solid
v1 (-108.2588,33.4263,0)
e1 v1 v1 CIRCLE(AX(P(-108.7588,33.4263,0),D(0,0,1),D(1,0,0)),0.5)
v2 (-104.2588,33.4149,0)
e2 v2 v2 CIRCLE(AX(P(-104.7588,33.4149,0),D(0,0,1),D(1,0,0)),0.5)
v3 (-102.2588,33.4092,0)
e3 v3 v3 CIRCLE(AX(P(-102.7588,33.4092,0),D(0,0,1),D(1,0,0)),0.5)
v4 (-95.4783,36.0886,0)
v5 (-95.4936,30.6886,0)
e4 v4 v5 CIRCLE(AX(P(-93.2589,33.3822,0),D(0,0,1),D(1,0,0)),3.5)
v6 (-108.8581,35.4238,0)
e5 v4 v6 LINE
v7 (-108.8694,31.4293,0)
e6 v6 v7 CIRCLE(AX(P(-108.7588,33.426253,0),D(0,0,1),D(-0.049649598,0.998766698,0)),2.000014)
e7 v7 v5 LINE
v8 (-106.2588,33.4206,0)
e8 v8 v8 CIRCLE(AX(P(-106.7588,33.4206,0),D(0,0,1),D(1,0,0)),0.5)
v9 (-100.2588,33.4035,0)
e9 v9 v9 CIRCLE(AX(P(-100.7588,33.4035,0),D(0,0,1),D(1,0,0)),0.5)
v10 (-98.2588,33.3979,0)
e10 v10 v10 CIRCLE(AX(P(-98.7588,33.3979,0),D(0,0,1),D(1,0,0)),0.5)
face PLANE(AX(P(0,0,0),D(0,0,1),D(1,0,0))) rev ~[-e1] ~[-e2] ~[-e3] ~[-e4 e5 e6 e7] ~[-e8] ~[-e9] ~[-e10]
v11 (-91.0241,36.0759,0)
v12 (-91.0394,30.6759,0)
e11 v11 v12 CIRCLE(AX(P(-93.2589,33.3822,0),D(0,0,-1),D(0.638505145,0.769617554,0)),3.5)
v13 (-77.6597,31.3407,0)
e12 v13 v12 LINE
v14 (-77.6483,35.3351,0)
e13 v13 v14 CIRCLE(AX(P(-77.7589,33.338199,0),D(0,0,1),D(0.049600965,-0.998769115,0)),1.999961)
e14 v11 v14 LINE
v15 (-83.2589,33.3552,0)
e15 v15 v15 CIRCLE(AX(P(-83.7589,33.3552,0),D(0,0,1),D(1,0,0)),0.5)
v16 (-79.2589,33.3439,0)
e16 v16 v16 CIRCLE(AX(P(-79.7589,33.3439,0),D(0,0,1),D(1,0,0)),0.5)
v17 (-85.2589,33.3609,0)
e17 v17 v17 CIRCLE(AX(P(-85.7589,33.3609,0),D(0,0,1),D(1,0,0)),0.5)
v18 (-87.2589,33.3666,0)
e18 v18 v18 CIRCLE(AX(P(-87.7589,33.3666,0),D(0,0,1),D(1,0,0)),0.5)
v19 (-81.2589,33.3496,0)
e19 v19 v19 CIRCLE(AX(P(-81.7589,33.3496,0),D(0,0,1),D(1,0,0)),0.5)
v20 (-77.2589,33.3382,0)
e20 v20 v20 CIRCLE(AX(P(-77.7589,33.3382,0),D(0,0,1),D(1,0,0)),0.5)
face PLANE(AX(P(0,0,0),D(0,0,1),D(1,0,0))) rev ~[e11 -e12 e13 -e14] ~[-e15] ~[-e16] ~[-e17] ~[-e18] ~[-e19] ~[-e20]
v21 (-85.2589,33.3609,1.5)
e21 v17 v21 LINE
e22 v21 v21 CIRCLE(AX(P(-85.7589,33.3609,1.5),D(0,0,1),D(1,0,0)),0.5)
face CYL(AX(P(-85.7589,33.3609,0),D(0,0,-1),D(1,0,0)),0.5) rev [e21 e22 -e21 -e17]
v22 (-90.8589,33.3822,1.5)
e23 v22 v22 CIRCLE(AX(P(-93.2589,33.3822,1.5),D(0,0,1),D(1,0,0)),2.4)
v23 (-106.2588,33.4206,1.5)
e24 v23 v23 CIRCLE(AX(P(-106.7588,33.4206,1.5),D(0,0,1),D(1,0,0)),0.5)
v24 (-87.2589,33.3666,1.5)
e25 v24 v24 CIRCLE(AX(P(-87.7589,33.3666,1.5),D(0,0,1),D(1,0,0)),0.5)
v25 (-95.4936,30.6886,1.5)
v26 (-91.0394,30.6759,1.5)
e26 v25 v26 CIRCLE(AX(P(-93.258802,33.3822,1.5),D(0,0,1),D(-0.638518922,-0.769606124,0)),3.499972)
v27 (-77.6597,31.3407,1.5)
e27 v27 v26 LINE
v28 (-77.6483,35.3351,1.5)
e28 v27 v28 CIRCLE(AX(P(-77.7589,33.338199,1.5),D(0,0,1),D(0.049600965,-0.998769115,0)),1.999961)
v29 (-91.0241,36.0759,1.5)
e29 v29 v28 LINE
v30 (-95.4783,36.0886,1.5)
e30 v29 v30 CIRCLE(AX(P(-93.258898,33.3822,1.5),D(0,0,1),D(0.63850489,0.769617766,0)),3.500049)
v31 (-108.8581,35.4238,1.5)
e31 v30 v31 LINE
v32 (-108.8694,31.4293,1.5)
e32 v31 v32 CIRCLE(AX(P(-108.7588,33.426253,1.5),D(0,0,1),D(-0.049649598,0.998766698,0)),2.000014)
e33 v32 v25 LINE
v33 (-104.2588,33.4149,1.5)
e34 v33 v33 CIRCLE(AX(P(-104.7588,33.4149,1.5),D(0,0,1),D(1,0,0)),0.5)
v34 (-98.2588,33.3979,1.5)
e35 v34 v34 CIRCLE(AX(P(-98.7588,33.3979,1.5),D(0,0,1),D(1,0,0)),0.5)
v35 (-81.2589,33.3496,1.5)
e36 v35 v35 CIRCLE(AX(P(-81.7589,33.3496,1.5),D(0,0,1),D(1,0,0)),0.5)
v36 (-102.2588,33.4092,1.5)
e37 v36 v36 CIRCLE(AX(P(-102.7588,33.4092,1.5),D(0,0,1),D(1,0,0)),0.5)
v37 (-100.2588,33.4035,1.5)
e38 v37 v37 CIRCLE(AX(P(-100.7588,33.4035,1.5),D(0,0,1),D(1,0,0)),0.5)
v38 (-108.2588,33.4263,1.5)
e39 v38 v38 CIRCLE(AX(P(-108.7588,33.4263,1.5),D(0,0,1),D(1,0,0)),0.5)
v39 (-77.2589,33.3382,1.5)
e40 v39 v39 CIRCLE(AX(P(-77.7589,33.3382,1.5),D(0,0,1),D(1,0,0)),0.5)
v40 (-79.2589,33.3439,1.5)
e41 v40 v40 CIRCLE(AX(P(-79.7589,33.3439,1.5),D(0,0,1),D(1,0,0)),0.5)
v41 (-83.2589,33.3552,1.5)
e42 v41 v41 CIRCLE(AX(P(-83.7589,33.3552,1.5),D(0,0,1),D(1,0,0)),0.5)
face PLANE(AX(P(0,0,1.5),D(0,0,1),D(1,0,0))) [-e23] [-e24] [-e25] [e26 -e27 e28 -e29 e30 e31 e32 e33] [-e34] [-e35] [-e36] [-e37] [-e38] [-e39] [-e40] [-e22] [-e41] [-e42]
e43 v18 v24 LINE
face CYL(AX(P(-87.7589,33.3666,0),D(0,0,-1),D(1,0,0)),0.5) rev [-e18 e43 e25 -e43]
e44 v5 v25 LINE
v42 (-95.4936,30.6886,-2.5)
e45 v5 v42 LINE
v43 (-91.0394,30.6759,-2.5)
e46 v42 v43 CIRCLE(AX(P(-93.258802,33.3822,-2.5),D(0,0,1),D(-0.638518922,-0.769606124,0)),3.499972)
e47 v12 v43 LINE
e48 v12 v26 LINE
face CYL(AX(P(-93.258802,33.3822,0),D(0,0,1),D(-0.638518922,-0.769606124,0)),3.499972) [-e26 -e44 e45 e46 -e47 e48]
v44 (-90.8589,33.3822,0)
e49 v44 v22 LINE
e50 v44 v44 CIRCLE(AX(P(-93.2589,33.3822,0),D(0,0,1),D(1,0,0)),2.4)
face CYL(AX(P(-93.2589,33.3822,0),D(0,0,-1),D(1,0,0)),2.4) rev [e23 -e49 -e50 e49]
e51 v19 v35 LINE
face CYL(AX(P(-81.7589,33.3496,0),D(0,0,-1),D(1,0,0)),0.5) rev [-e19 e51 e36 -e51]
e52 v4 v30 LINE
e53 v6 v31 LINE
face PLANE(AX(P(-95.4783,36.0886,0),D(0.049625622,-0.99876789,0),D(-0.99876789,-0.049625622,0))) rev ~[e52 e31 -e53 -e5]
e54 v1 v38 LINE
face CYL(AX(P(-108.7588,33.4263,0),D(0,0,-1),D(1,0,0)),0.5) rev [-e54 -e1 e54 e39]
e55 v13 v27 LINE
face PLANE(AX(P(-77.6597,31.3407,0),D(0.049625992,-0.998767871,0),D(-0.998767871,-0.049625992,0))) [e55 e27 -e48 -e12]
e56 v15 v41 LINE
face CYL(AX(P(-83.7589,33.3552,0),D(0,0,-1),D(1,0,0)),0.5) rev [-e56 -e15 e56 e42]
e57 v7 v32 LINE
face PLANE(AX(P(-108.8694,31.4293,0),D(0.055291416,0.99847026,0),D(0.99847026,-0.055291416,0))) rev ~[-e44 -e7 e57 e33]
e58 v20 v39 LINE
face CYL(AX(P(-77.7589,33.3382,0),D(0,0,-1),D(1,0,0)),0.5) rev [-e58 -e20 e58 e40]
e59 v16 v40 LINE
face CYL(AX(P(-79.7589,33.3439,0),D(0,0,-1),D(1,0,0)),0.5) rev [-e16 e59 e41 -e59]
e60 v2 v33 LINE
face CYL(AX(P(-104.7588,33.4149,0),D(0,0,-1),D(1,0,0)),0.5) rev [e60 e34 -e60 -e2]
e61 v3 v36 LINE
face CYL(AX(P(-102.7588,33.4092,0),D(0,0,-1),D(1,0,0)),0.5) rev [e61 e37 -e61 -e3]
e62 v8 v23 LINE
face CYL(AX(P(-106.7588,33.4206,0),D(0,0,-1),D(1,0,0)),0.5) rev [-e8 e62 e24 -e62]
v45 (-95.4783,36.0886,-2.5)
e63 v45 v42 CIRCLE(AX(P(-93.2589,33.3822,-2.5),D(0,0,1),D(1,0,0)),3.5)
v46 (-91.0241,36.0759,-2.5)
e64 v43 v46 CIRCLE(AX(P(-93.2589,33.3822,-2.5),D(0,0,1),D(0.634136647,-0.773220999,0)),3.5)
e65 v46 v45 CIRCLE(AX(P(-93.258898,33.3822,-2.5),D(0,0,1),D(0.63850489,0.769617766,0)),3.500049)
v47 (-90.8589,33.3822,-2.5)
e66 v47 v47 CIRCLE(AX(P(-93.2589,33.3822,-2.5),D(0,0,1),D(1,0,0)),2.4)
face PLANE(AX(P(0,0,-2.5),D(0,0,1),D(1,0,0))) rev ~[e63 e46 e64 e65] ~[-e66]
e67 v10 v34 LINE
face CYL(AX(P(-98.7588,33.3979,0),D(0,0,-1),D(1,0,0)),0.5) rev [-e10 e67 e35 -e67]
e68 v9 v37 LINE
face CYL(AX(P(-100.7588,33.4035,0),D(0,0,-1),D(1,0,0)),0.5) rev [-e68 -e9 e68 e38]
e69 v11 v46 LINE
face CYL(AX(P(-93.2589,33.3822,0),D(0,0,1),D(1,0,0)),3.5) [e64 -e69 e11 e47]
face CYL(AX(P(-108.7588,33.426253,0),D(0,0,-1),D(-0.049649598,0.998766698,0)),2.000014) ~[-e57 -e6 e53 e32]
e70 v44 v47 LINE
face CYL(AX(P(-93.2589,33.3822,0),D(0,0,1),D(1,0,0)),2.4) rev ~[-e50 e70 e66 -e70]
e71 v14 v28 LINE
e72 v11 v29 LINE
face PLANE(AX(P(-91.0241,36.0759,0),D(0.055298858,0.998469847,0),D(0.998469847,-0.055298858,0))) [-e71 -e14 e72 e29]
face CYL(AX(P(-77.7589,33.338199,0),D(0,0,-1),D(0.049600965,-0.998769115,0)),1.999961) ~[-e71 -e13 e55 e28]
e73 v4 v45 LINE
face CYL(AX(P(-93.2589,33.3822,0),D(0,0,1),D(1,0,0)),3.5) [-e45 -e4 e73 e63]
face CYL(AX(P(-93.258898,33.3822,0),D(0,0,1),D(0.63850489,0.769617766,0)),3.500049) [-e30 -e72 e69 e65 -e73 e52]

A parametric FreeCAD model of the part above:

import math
import FreeCAD as App
import Part
import Sketcher

V = App.Vector
Q = App.Units.Quantity

doc = App.newDocument("Part")
body = doc.addObject("PartDesign::Body", "Body")

# Sketch on XY plane
sketch1 = body.newObject("Sketcher::SketchObject", "Sketch")
sketch1.AttachmentSupport = (doc.getObject("XY_Plane"), [""])
sketch1.MapMode = "FlatFace"
sketch1.addGeometry([
    Part.ArcOfCircle(Part.Circle(V(-93.2589, 33.3822, 0), V(0, 0, 1), 3.50005), math.radians(-129.680227), math.radians(-50.644019)),  # 0
    Part.LineSegment(V(-91.0394, 30.6759, 0), V(-77.6597, 31.3407, 0)),  # 1
    Part.ArcOfCircle(Part.Circle(V(-77.7589, 33.3382, 0), V(0, 0, 1), 1.999962), math.radians(-87.156908), math.radians(86.829864)),  # 2
    Part.LineSegment(V(-77.6483, 35.3351, 0), V(-91.0241, 36.0759, 0)),  # 3
    Part.ArcOfCircle(Part.Circle(V(-93.2589, 33.3822, 0), V(0, 0, 1), 3.50005), math.radians(50.319558), math.radians(129.353677)),  # 4
    Part.LineSegment(V(-95.4783, 36.0886, 0), V(-108.8581, 35.4238, 0)),  # 5
    Part.ArcOfCircle(Part.Circle(V(-108.7588, 33.4263, 0), V(0, 0, 1), 1.999967), math.radians(92.845953), math.radians(266.830022)),  # 6
    Part.LineSegment(V(-108.8694, 31.4293, 0), V(-95.4936, 30.6886, 0)),  # 7
    Part.Circle(V(-93.2589, 33.3822, 0), V(0, 0, 1), 2.4),  # 8
    Part.Circle(V(-79.7589, 33.3439, 0), V(0, 0, 1), 0.5),  # 9
    Part.Circle(V(-77.7589, 33.3382, 0), V(0, 0, 1), 0.5),  # 10
    Part.Circle(V(-87.7589, 33.3666, 0), V(0, 0, 1), 0.5),  # 11
    Part.Circle(V(-85.7589, 33.3609, 0), V(0, 0, 1), 0.5),  # 12
    Part.Circle(V(-83.7589, 33.3552, 0), V(0, 0, 1), 0.5),  # 13
    Part.Circle(V(-81.7589, 33.3496, 0), V(0, 0, 1), 0.5),  # 14
    Part.Circle(V(-98.7588, 33.3979, 0), V(0, 0, 1), 0.5),  # 15
    Part.Circle(V(-108.7588, 33.4263, 0), V(0, 0, 1), 0.5),  # 16
    Part.Circle(V(-106.7588, 33.4206, 0), V(0, 0, 1), 0.5),  # 17
    Part.Circle(V(-104.7588, 33.4149, 0), V(0, 0, 1), 0.5),  # 18
    Part.Circle(V(-102.7588, 33.4092, 0), V(0, 0, 1), 0.5),  # 19
    Part.Circle(V(-100.7588, 33.4035, 0), V(0, 0, 1), 0.5),  # 20
], False)
sketch1.addConstraint([
    Sketcher.Constraint("Coincident", 0, 2, 1, 1),
    Sketcher.Constraint("Tangent", 1, 2, 2, 1),
    Sketcher.Constraint("Tangent", 2, 2, 3, 1),
    Sketcher.Constraint("Coincident", 3, 2, 4, 1),
    Sketcher.Constraint("Coincident", 4, 2, 5, 1),
    Sketcher.Constraint("Tangent", 5, 2, 6, 1),
    Sketcher.Constraint("Tangent", 6, 2, 7, 1),
    Sketcher.Constraint("Coincident", 7, 2, 0, 1),
    Sketcher.Constraint("Coincident", 4, 3, 0, 3),
    Sketcher.Constraint("Coincident", 8, 3, 0, 3),
    Sketcher.Constraint("Coincident", 10, 3, 2, 3),
    Sketcher.Constraint("Coincident", 16, 3, 6, 3),
    Sketcher.Constraint("Equal", 0, 4),
    Sketcher.Constraint("Equal", 2, 6),
    Sketcher.Constraint("Equal", 9, 10),
    Sketcher.Constraint("Equal", 10, 11),
    Sketcher.Constraint("Equal", 11, 12),
    Sketcher.Constraint("Equal", 12, 13),
    Sketcher.Constraint("Equal", 13, 14),
    Sketcher.Constraint("Equal", 14, 15),
    Sketcher.Constraint("Equal", 15, 16),
    Sketcher.Constraint("Equal", 16, 17),
    Sketcher.Constraint("Equal", 17, 18),
    Sketcher.Constraint("Equal", 18, 19),
    Sketcher.Constraint("Equal", 19, 20),
    Sketcher.Constraint("Parallel", 1, 5),
    Sketcher.Constraint("Parallel", 3, 7),
    Sketcher.Constraint("Equal", 1, 3),
    Sketcher.Constraint("Equal", 3, 5),
    Sketcher.Constraint("Equal", 5, 7),
    Sketcher.Constraint("Diameter", 9, Q("1 mm")),
    Sketcher.Constraint("Radius", 2, Q("2 mm")),
    Sketcher.Constraint("Diameter", 8, Q("4.8 mm")),
    Sketcher.Constraint("Radius", 0, Q("3.5 mm")),
    Sketcher.Constraint("DistanceX", 9, 3, 2, 3, Q("2 mm")),
    Sketcher.Constraint("DistanceX", 11, 3, 9, 3, Q("8 mm")),
    Sketcher.Constraint("DistanceX", 11, 3, 12, 3, Q("2 mm")),
    Sketcher.Constraint("DistanceX", 12, 3, 13, 3, Q("2 mm")),
    Sketcher.Constraint("DistanceX", 13, 3, 14, 3, Q("2 mm")),
    Sketcher.Constraint("DistanceX", 6, 3, 15, 3, Q("10 mm")),
    Sketcher.Constraint("DistanceX", 6, 3, 17, 3, Q("2 mm")),
    Sketcher.Constraint("DistanceX", 17, 3, 18, 3, Q("2 mm")),
    Sketcher.Constraint("DistanceX", 18, 3, 19, 3, Q("2 mm")),
    Sketcher.Constraint("DistanceX", 20, 3, 15, 3, Q("2 mm")),
    Sketcher.Constraint("DistanceX", 0, 3, 2, 3, Q("15.5 mm")),
    Sketcher.Constraint("DistanceY", 0, 2, 3, 2, Q("5.4 mm")),
    Sketcher.Constraint("Angle", 3, Q("176.83 deg")),
    Sketcher.Constraint("DistanceX", 0, 3, -1, 1, Q("93.259 mm")),
    Sketcher.Constraint("DistanceY", -1, 1, 9, 3, Q("33.344 mm")),
    Sketcher.Constraint("DistanceY", -1, 1, 12, 3, Q("33.361 mm")),
    Sketcher.Constraint("DistanceY", -1, 1, 15, 3, Q("33.398 mm")),
    Sketcher.Constraint("DistanceY", -1, 1, 18, 3, Q("33.415 mm")),
    Sketcher.Constraint("DistanceY", -1, 1, 0, 2, Q("30.676 mm")),
    Sketcher.Constraint("DistanceY", 2, 3, 13, 3, Q("0.017 mm")),
    Sketcher.Constraint("DistanceY", 19, 3, 6, 3, Q("0.017 mm")),
    Sketcher.Constraint("DistanceY", 20, 3, 17, 3, Q("0.017 mm")),
    Sketcher.Constraint("DistanceY", 1, 2, 14, 3, Q("2.009 mm")),
    Sketcher.Constraint("DistanceY", -1, 1, 11, 3, Q("33.3666 mm")),
    Sketcher.Constraint("DistanceY", -1, 1, 17, 3, Q("33.4206 mm")),
])
pad1 = body.newObject("PartDesign::Pad", "Pad")
pad1.Profile = sketch1
pad1.Length = 1.5

# Sketch on XY plane
sketch2 = body.newObject("Sketcher::SketchObject", "Sketch001")
sketch2.AttachmentSupport = (doc.getObject("XY_Plane"), [""])
sketch2.MapMode = "FlatFace"
sketch2.addGeometry([
    Part.ArcOfCircle(Part.Circle(V(-93.2589, 33.3822, 0), V(0, 0, 1), 3.5), math.radians(-50.644019), math.radians(50.319558)),  # 0
    Part.ArcOfCircle(Part.Circle(V(-93.2589, 33.3822, 0), V(0, 0, 1), 3.50005), math.radians(50.319558), math.radians(129.353677)),  # 1
    Part.ArcOfCircle(Part.Circle(V(-93.2589, 33.3822, 0), V(0, 0, 1), 3.5), math.radians(129.353677), math.radians(230.319773)),  # 2
    Part.ArcOfCircle(Part.Circle(V(-93.2589, 33.3822, 0), V(0, 0, 1), 3.50005), math.radians(-129.680227), math.radians(-50.644019)),  # 3
    Part.Circle(V(-93.2589, 33.3822, 0), V(0, 0, 1), 2.4),  # 4
], False)
sketch2.addConstraint([
    Sketcher.Constraint("Tangent", 0, 2, 1, 1),
    Sketcher.Constraint("Tangent", 1, 2, 2, 1),
    Sketcher.Constraint("Tangent", 2, 2, 3, 1),
    Sketcher.Constraint("Tangent", 3, 2, 0, 1),
    Sketcher.Constraint("Coincident", 4, 3, 0, 3),
    Sketcher.Constraint("Equal", 0, 1),
    Sketcher.Constraint("Diameter", 4, Q("4.8 mm")),
    Sketcher.Constraint("Radius", 0, Q("3.5 mm")),
    Sketcher.Constraint("DistanceX", 0, 3, -1, 1, Q("93.259 mm")),
    Sketcher.Constraint("DistanceY", -1, 1, 3, 2, Q("30.676 mm")),
    Sketcher.Constraint("DistanceY", -1, 1, 0, 3, Q("33.3822 mm")),
    Sketcher.Constraint("DistanceX", 0, 2, -1, 1, Q("91.0241 mm")),
    Sketcher.Constraint("DistanceX", 1, 2, -1, 1, Q("95.4783 mm")),
    Sketcher.Constraint("DistanceX", 2, 2, -1, 1, Q("95.4937 mm")),
])
pad2 = body.newObject("PartDesign::Pad", "Pad001")
pad2.Profile = sketch2
pad2.Length = 2.5
pad2.Reversed = True

doc.recompute()
